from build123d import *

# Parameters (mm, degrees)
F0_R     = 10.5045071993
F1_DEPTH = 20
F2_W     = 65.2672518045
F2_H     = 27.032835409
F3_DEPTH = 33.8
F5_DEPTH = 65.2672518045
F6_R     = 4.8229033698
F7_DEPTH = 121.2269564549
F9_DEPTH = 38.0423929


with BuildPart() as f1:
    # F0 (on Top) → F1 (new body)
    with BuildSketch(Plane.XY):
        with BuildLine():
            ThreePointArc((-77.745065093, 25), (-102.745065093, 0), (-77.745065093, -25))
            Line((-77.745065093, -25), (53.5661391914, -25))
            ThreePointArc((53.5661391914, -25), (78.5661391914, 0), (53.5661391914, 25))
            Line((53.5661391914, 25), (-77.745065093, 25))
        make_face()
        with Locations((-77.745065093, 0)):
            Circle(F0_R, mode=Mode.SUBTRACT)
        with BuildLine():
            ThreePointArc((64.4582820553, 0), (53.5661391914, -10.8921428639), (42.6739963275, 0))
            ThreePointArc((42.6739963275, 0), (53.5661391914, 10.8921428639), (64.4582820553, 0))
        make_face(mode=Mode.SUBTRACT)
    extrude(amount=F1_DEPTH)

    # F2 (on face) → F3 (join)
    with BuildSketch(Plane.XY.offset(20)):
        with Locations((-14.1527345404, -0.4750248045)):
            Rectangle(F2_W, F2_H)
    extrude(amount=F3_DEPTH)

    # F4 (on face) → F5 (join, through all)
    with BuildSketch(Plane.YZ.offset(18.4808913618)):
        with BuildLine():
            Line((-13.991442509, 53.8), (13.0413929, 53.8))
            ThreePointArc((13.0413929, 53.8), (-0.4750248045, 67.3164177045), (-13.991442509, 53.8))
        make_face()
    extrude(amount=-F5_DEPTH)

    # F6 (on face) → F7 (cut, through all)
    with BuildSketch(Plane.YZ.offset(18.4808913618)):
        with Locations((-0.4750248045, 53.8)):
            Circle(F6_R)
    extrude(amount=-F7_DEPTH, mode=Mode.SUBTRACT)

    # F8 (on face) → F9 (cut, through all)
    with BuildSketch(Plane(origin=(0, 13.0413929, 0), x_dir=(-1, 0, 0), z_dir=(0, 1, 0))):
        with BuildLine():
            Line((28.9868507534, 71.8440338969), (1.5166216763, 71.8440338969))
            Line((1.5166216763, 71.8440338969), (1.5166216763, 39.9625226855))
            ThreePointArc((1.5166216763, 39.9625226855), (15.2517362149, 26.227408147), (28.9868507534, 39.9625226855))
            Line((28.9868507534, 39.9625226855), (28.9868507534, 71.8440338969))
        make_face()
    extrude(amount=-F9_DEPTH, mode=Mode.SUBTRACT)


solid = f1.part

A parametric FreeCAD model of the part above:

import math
import FreeCAD as App
import Part
import Sketcher

V = App.Vector

doc = App.newDocument("Part")
body = doc.addObject("PartDesign::Body", "Body")

sketch1 = doc.addObject("Sketcher::SketchObject", "Sketch")
body.addObject(sketch1)
sketch1.AttachmentSupport = (doc.XY_Plane, [""])
sketch1.MapMode = "FlatFace"
sketch1.addGeometry([
    Part.ArcOfCircle(Part.Circle(V(-78, 0, 0), V(0, 0, 1), 25), math.radians(90), math.radians(270)),
    Part.LineSegment(V(-78, -25, 0), V(54, -25, 0)),
    Part.ArcOfCircle(Part.Circle(V(54, 0, 0), V(0, 0, 1), 25), math.radians(-90), math.radians(90)),
    Part.LineSegment(V(54, 25, 0), V(-78, 25, 0)),
    Part.Circle(V(-78, 0, 0), V(0, 0, 1), 11),
    Part.Circle(V(54, 0, 0), V(0, 0, 1), 11),
], False)
sketch1.addConstraint([
    Sketcher.Constraint("Tangent", 0, 2, 1, 1),
    Sketcher.Constraint("Tangent", 1, 2, 2, 1),
    Sketcher.Constraint("Tangent", 2, 2, 3, 1),
    Sketcher.Constraint("Tangent", 3, 2, 0, 1),
    Sketcher.Constraint("Horizontal", 1),
    Sketcher.Constraint("Horizontal", 3),
    Sketcher.Constraint("Coincident", 4, 3, 0, 3),
    Sketcher.Constraint("Coincident", 5, 3, 2, 3),
    Sketcher.Constraint("PointOnObject", 0, 3, -1),
    Sketcher.Constraint("Radius", 0, 25.0),
    Sketcher.Constraint("Diameter", 4, 21.009014),
    Sketcher.Constraint("Diameter", 5, 21.784286),
    Sketcher.Constraint("DistanceX", 1, 1, 1, 2, 131.311204),
    Sketcher.Constraint("DistanceX", -1, 1, 2, 3, 53.566139),
])
pad1 = doc.addObject("PartDesign::Pad", "Pad")
body.addObject(pad1)
pad1.Profile = sketch1
pad1.Length = 20

sketch2 = doc.addObject("Sketcher::SketchObject", "Sketch001")
body.addObject(sketch2)
sketch2.AttachmentSupport = (doc.XY_Plane, [""])
sketch2.MapMode = "FlatFace"
sketch2.AttachmentOffset = App.Placement(V(0, 0, 20), App.Rotation())
sketch2.addGeometry([
    Part.LineSegment(V(-47, 13, 0), V(-47, -14, 0)),
    Part.LineSegment(V(-47, -14, 0), V(18, -14, 0)),
    Part.LineSegment(V(18, -14, 0), V(18, 13, 0)),
    Part.LineSegment(V(18, 13, 0), V(-47, 13, 0)),
], False)
sketch2.addConstraint([
    Sketcher.Constraint("Coincident", 0, 2, 1, 1),
    Sketcher.Constraint("Coincident", 1, 2, 2, 1),
    Sketcher.Constraint("Coincident", 2, 2, 3, 1),
    Sketcher.Constraint("Coincident", 3, 2, 0, 1),
    Sketcher.Constraint("Vertical", 0),
    Sketcher.Constraint("Horizontal", 1),
    Sketcher.Constraint("Vertical", 2),
    Sketcher.Constraint("Horizontal", 3),
    Sketcher.Constraint("DistanceX", 1, 1, 1, 2, 65.267252),
    Sketcher.Constraint("DistanceY", 0, 2, 0, 1, 27.032835),
    Sketcher.Constraint("DistanceX", 0, 2, -1, 1, 46.78636),
    Sketcher.Constraint("DistanceY", 0, 2, -1, 1, 13.991443),
])
pad2 = doc.addObject("PartDesign::Pad", "Pad001")
body.addObject(pad2)
pad2.Profile = sketch2
pad2.Length = 33.8

sketch3 = doc.addObject("Sketcher::SketchObject", "Sketch002")
body.addObject(sketch3)
sketch3.AttachmentSupport = (doc.YZ_Plane, [""])
sketch3.MapMode = "FlatFace"
sketch3.AttachmentOffset = App.Placement(V(0, 0, 18.480891), App.Rotation())
sketch3.addGeometry([
    Part.LineSegment(V(-14, 54, 0), V(13, 54, 0)),
    Part.ArcOfCircle(Part.Circle(V(0, 54, 0), V(0, 0, 1), 14), math.radians(0), math.radians(180)),
], False)
sketch3.addConstraint([
    Sketcher.Constraint("Coincident", 0, 1, 1, 2),
    Sketcher.Constraint("Coincident", 1, 1, 0, 2),
    Sketcher.Constraint("Horizontal", 0),
    Sketcher.Constraint("Horizontal", 1, 3, 0, 1),
    Sketcher.Constraint("DistanceY", -1, 1, 1, 3, 53.8),
    Sketcher.Constraint("Radius", 1, 13.516418),
    Sketcher.Constraint("DistanceX", 1, 3, -1, 1, 0.475025),
])
pad3 = doc.addObject("PartDesign::Pad", "Pad002")
body.addObject(pad3)
pad3.Profile = sketch3
pad3.Length = 65.267252
pad3.Reversed = True

sketch4 = doc.addObject("Sketcher::SketchObject", "Sketch003")
body.addObject(sketch4)
sketch4.AttachmentSupport = (doc.YZ_Plane, [""])
sketch4.MapMode = "FlatFace"
sketch4.AttachmentOffset = App.Placement(V(0, 0, 18.480891), App.Rotation())
sketch4.addGeometry(Part.Circle(V(-0.5, 53.8, 0), V(0, 0, 1), 4.8), False)
sketch4.addConstraint([
    Sketcher.Constraint("DistanceY", -1, 1, 0, 3, 53.8),
    Sketcher.Constraint("Diameter", 0, 9.645807),
    Sketcher.Constraint("DistanceX", 0, 3, -1, 1, 0.475025),
])
pocket1 = doc.addObject("PartDesign::Pocket", "Pocket")
body.addObject(pocket1)
pocket1.Profile = sketch4
pocket1.Type = "ThroughAll"

sketch5 = doc.addObject("Sketcher::SketchObject", "Sketch004")
body.addObject(sketch5)
sketch5.AttachmentSupport = (doc.XZ_Plane, [""])
sketch5.MapMode = "FlatFace"
sketch5.AttachmentOffset = App.Placement(V(0, 0, -13.041393), App.Rotation())
sketch5.addGeometry([
    Part.LineSegment(V(-29, 72, 0), V(-2, 72, 0)),
    Part.LineSegment(V(-2, 72, 0), V(-2, 40, 0)),
    Part.ArcOfCircle(Part.Circle(V(-15, 40, 0), V(0, 0, 1), 14), math.radians(-180), math.radians(0)),
    Part.LineSegment(V(-29, 40, 0), V(-29, 72, 0)),
], False)
sketch5.addConstraint([
    Sketcher.Constraint("Coincident", 0, 2, 1, 1),
    Sketcher.Constraint("Tangent", 1, 2, 2, 2),
    Sketcher.Constraint("Tangent", 2, 1, 3, 1),
    Sketcher.Constraint("Coincident", 3, 2, 0, 1),
    Sketcher.Constraint("Horizontal", 0),
    Sketcher.Constraint("Vertical", 1),
    Sketcher.Constraint("Vertical", 3),
    Sketcher.Constraint("Radius", 2, 13.735115),
    Sketcher.Constraint("DistanceY", 1, 2, 1, 1, 31.881511),
    Sketcher.Constraint("DistanceX", 0, 2, -1, 1, 1.516622),
    Sketcher.Constraint("DistanceY", -1, 1, 2, 3, 39.962523),
])
pocket2 = doc.addObject("PartDesign::Pocket", "Pocket001")
body.addObject(pocket2)
pocket2.Profile = sketch5
pocket2.Type = "ThroughAll"
pocket2.Reversed = True

doc.recompute()
